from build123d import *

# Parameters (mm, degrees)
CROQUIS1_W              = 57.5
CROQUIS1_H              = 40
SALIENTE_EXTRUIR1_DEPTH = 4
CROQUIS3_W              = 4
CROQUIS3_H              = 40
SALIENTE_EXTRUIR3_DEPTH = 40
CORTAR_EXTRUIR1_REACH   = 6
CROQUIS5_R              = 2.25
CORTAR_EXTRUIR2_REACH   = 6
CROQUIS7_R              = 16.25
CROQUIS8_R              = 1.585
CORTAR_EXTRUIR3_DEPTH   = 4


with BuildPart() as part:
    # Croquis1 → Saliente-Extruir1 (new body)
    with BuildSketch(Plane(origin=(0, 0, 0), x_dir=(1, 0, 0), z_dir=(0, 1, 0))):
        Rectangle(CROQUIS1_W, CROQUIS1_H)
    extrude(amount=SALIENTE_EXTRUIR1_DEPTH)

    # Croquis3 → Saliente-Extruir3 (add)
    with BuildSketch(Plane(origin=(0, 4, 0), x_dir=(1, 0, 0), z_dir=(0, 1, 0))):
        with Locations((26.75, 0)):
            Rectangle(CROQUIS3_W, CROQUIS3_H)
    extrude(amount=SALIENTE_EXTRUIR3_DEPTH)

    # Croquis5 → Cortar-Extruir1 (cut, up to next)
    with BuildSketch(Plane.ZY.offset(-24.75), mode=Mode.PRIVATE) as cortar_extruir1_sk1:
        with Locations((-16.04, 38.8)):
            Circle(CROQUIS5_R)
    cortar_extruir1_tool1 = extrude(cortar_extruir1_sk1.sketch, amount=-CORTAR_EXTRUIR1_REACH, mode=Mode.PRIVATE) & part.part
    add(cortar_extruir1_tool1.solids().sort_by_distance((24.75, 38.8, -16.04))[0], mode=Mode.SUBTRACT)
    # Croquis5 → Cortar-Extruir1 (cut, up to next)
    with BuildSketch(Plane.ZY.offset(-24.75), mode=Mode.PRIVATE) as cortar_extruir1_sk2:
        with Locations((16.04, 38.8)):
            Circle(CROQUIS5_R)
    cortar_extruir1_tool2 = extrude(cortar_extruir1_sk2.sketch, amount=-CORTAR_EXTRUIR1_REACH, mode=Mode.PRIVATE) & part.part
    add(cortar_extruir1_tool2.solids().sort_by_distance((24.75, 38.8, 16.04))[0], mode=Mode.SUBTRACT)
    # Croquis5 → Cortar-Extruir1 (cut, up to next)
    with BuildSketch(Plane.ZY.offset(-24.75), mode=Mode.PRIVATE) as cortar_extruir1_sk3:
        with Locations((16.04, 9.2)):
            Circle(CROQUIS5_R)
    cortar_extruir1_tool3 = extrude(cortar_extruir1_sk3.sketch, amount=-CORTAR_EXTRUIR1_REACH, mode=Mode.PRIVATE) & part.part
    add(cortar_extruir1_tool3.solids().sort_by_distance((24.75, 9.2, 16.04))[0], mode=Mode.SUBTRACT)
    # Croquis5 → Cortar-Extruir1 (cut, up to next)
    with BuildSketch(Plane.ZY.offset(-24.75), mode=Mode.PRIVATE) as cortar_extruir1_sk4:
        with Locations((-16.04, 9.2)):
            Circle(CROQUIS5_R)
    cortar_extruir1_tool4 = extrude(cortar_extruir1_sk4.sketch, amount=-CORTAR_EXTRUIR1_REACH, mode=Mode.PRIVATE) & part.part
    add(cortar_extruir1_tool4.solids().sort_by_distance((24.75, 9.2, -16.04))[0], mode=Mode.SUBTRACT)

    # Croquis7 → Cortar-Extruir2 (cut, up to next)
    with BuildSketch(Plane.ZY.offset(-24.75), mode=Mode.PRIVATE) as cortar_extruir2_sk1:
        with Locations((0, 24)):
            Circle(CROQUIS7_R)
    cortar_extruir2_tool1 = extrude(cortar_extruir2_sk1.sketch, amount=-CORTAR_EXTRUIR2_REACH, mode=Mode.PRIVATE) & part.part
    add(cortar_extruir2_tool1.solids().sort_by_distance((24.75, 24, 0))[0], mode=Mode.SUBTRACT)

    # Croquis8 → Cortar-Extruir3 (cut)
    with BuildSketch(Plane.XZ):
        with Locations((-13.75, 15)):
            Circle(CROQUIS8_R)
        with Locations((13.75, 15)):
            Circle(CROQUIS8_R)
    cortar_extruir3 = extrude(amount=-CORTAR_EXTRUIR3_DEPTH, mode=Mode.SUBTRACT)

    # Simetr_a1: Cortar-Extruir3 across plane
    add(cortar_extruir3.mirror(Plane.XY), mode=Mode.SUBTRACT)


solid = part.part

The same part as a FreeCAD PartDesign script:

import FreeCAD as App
import Part
import Sketcher

V = App.Vector


def add_polygon(sketch, points):
    """Adds a closed chain of lines whose ends are joined by coincident constraints."""
    first, n = sketch.GeometryCount, len(points)
    for a, b in zip(points, points[1:] + points[:1]):
        sketch.addGeometry(Part.LineSegment(App.Vector(*a, 0), App.Vector(*b, 0)), False)
    for i in range(n):
        sketch.addConstraint(Sketcher.Constraint("Coincident", first + i, 2, first + (i + 1) % n, 1))

doc = App.newDocument("Part")
body = doc.addObject("PartDesign::Body", "Body")

# Sketch on XZ plane
sketch1 = body.newObject("Sketcher::SketchObject", "Sketch")
sketch1.AttachmentSupport = (doc.getObject("XZ_Plane"), [""])
sketch1.MapMode = "FlatFace"
add_polygon(sketch1, [(-29, -20), (-29, 20), (29, 20), (29, -20)])  # lines 0-3
sketch1.addConstraint(Sketcher.Constraint("Vertical", 0))
sketch1.addConstraint(Sketcher.Constraint("Horizontal", 1))
sketch1.addConstraint(Sketcher.Constraint("Vertical", 2))
sketch1.addConstraint(Sketcher.Constraint("Horizontal", 3))
sketch1.addConstraint(Sketcher.Constraint("Symmetric", 0, 2, 2, 2, -1, 1))
sketch1.addConstraint(Sketcher.Constraint("DistanceY", 0, 1, 0, 2, 40.0))
sketch1.addConstraint(Sketcher.Constraint("DistanceX", 1, 1, 1, 2, 57.5))
pad1 = body.newObject("PartDesign::Pad", "Pad")
pad1.Profile = sketch1
pad1.Length = 4
pad1.Reversed = True

# Sketch on XZ plane
sketch2 = body.newObject("Sketcher::SketchObject", "Sketch001")
sketch2.AttachmentSupport = (doc.getObject("XZ_Plane"), [""])
sketch2.MapMode = "FlatFace"
sketch2.AttachmentOffset = App.Placement(V(0, 0, -4), App.Rotation())
add_polygon(sketch2, [(24.8, -20), (24.8, 20), (28.8, 20), (28.8, -20)])  # lines 0-3
sketch2.addConstraint(Sketcher.Constraint("Vertical", 0))
sketch2.addConstraint(Sketcher.Constraint("Horizontal", 1))
sketch2.addConstraint(Sketcher.Constraint("Vertical", 2))
sketch2.addConstraint(Sketcher.Constraint("Horizontal", 3))
sketch2.addConstraint(Sketcher.Constraint("DistanceX", 1, 1, 1, 2, 4.0))
sketch2.addConstraint(Sketcher.Constraint("DistanceY", 0, 1, 0, 2, 40.0))
sketch2.addConstraint(Sketcher.Constraint("DistanceY", -1, 1, 0, 2, 20.0))
sketch2.addConstraint(Sketcher.Constraint("DistanceX", -1, 1, 0, 2, 24.75))
pad2 = body.newObject("PartDesign::Pad", "Pad001")
pad2.Profile = sketch2
pad2.Length = 40
pad2.Reversed = True

# Sketch on YZ plane
sketch3 = body.newObject("Sketcher::SketchObject", "Sketch002")
sketch3.AttachmentSupport = (doc.getObject("YZ_Plane"), [""])
sketch3.MapMode = "FlatFace"
sketch3.AttachmentOffset = App.Placement(V(0, 0, 24.75), App.Rotation())
sketch3.addGeometry(Part.Circle(V(38.8, -16, 0), V(0, 0, 1), 2.2), False)
sketch3.addConstraint(Sketcher.Constraint("Diameter", 0, 4.5))
sketch3.addConstraint(Sketcher.Constraint("DistanceX", -1, 1, 0, 3, 38.8))
sketch3.addConstraint(Sketcher.Constraint("DistanceY", 0, 3, -1, 1, 16.04))
pocket1 = body.newObject("PartDesign::Pocket", "Pocket")
pocket1.Profile = sketch3
pocket1.Type = "UpToFirst"
pocket1.Reversed = True

# Sketch on YZ plane
sketch4 = body.newObject("Sketcher::SketchObject", "Sketch003")
sketch4.AttachmentSupport = (doc.getObject("YZ_Plane"), [""])
sketch4.MapMode = "FlatFace"
sketch4.AttachmentOffset = App.Placement(V(0, 0, 24.75), App.Rotation())
sketch4.addGeometry(Part.Circle(V(38.8, 16, 0), V(0, 0, 1), 2.2), False)
sketch4.addConstraint(Sketcher.Constraint("Diameter", 0, 4.5))
sketch4.addConstraint(Sketcher.Constraint("DistanceX", -1, 1, 0, 3, 38.8))
sketch4.addConstraint(Sketcher.Constraint("DistanceY", -1, 1, 0, 3, 16.04))
pocket2 = body.newObject("PartDesign::Pocket", "Pocket001")
pocket2.Profile = sketch4
pocket2.Type = "UpToFirst"
pocket2.Reversed = True

# Sketch on YZ plane
sketch5 = body.newObject("Sketcher::SketchObject", "Sketch004")
sketch5.AttachmentSupport = (doc.getObject("YZ_Plane"), [""])
sketch5.MapMode = "FlatFace"
sketch5.AttachmentOffset = App.Placement(V(0, 0, 24.75), App.Rotation())
sketch5.addGeometry(Part.Circle(V(9.2, 16, 0), V(0, 0, 1), 2.2), False)
sketch5.addConstraint(Sketcher.Constraint("Diameter", 0, 4.5))
sketch5.addConstraint(Sketcher.Constraint("DistanceX", -1, 1, 0, 3, 9.2))
sketch5.addConstraint(Sketcher.Constraint("DistanceY", -1, 1, 0, 3, 16.04))
pocket3 = body.newObject("PartDesign::Pocket", "Pocket002")
pocket3.Profile = sketch5
pocket3.Type = "UpToFirst"
pocket3.Reversed = True

# Sketch on YZ plane
sketch6 = body.newObject("Sketcher::SketchObject", "Sketch005")
sketch6.AttachmentSupport = (doc.getObject("YZ_Plane"), [""])
sketch6.MapMode = "FlatFace"
sketch6.AttachmentOffset = App.Placement(V(0, 0, 24.75), App.Rotation())
sketch6.addGeometry(Part.Circle(V(9.2, -16, 0), V(0, 0, 1), 2.2), False)
sketch6.addConstraint(Sketcher.Constraint("Diameter", 0, 4.5))
sketch6.addConstraint(Sketcher.Constraint("DistanceX", -1, 1, 0, 3, 9.2))
sketch6.addConstraint(Sketcher.Constraint("DistanceY", 0, 3, -1, 1, 16.04))
pocket4 = body.newObject("PartDesign::Pocket", "Pocket003")
pocket4.Profile = sketch6
pocket4.Type = "UpToFirst"
pocket4.Reversed = True

# Sketch on YZ plane
sketch7 = body.newObject("Sketcher::SketchObject", "Sketch006")
sketch7.AttachmentSupport = (doc.getObject("YZ_Plane"), [""])
sketch7.MapMode = "FlatFace"
sketch7.AttachmentOffset = App.Placement(V(0, 0, 24.75), App.Rotation())
sketch7.addGeometry(Part.Circle(V(24, 0, 0), V(0, 0, 1), 16), False)
sketch7.addConstraint(Sketcher.Constraint("PointOnObject", 0, 3, -1))
sketch7.addConstraint(Sketcher.Constraint("Diameter", 0, 32.5))
sketch7.addConstraint(Sketcher.Constraint("DistanceX", -1, 1, 0, 3, 24.0))
pocket5 = body.newObject("PartDesign::Pocket", "Pocket004")
pocket5.Profile = sketch7
pocket5.Type = "UpToFirst"
pocket5.Reversed = True

# Sketch on XZ plane
sketch8 = body.newObject("Sketcher::SketchObject", "Sketch007")
sketch8.AttachmentSupport = (doc.getObject("XZ_Plane"), [""])
sketch8.MapMode = "FlatFace"
sketch8.addGeometry(Part.Circle(V(-13.8, 15, 0), V(0, 0, 1), 1.6), False)
sketch8.addGeometry(Part.Circle(V(13.8, 15, 0), V(0, 0, 1), 1.6), False)
sketch8.addConstraint(Sketcher.Constraint("Equal", 0, 1))
sketch8.addConstraint(Sketcher.Constraint("Symmetric", 0, 3, 1, 3, -2))
sketch8.addConstraint(Sketcher.Constraint("Diameter", 0, 3.17))
sketch8.addConstraint(Sketcher.Constraint("DistanceY", -1, 1, 0, 3, 15.0))
sketch8.addConstraint(Sketcher.Constraint("DistanceX", 0, 3, 1, 3, 27.5))
pocket6 = body.newObject("PartDesign::Pocket", "Pocket005")
pocket6.Profile = sketch8
pocket6.Length = 4
doc.recompute()

mirrored = body.newObject("PartDesign::Mirrored", "Mirrored")
mirrored.Originals = [pocket6]
mirrored.MirrorPlane = (doc.getObject("XY_Plane"), [""])
body.Tip = mirrored

doc.recompute()
